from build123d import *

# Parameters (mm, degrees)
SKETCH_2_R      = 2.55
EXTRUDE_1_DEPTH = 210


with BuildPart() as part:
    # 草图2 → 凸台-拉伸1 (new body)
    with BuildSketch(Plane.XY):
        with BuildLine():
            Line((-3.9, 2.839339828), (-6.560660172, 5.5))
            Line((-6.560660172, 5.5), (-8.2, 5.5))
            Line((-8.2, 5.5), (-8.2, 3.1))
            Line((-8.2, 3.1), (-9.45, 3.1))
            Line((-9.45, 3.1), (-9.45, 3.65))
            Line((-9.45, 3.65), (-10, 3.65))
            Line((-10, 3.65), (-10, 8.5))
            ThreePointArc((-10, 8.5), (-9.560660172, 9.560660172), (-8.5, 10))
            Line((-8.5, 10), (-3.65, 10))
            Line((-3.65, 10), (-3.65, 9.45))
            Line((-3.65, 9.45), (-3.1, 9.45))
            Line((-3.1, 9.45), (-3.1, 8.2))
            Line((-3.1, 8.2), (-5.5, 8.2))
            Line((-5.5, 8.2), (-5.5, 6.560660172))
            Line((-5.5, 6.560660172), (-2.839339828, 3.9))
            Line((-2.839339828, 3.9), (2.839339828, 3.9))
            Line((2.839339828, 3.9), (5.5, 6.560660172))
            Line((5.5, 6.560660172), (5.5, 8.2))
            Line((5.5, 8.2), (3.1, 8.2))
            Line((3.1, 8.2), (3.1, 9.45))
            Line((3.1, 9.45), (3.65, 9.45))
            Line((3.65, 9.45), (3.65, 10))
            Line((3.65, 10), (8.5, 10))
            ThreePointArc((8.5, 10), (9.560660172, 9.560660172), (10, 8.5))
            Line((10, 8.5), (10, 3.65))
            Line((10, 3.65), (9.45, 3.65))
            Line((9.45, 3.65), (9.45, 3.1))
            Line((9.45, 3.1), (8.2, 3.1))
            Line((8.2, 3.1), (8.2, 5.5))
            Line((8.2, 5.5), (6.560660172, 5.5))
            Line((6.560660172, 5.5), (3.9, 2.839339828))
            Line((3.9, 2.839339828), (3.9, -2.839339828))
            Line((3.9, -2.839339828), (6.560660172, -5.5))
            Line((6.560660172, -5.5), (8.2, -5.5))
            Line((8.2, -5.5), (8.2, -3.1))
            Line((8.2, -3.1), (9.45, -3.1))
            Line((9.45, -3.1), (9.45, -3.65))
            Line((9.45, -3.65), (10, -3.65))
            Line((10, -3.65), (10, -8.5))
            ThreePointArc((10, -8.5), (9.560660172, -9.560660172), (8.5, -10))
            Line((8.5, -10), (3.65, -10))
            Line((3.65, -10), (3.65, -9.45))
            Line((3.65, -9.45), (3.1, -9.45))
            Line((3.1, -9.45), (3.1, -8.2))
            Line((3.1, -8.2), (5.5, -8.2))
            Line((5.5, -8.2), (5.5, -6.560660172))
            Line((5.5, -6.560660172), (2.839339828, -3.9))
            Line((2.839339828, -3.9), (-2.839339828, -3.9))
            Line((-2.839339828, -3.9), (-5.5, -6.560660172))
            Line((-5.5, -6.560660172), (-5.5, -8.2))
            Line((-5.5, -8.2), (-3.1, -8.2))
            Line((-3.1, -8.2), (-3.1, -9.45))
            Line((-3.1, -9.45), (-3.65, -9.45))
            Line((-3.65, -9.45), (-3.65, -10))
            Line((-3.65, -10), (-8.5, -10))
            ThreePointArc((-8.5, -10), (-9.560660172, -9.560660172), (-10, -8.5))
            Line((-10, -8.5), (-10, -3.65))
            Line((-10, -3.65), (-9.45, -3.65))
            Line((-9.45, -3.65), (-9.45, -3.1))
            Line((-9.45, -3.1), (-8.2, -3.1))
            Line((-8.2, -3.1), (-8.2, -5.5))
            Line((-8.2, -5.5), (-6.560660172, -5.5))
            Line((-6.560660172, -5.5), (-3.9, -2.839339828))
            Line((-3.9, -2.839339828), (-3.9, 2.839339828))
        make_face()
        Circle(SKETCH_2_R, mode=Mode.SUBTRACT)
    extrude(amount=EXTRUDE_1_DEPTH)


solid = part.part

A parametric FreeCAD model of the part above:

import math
import FreeCAD as App
import Part
import Sketcher
Q = App.Units.Quantity

doc = App.newDocument("Part")
body = doc.addObject("PartDesign::Body", "Body")

sketch1 = body.newObject("Sketcher::SketchObject", "Sketch")
sketch1.AttachmentSupport = (doc.getObject("XY_Plane"), [""])
sketch1.MapMode = "FlatFace"
sketch1.addGeometry(Part.LineSegment(App.Vector(-6.6, 5.5, 0), App.Vector(-3.9, 2.8, 0)), False)
sketch1.addGeometry(Part.LineSegment(App.Vector(-3.9, 2.8, 0), App.Vector(-3.9, -2.8, 0)), False)
sketch1.addGeometry(Part.LineSegment(App.Vector(-3.9, -2.8, 0), App.Vector(-6.6, -5.5, 0)), False)
sketch1.addGeometry(Part.LineSegment(App.Vector(-6.6, -5.5, 0), App.Vector(-8.2, -5.5, 0)), False)
sketch1.addGeometry(Part.LineSegment(App.Vector(-8.2, -5.5, 0), App.Vector(-8.2, -3.1, 0)), False)
sketch1.addGeometry(Part.LineSegment(App.Vector(-8.2, -3.1, 0), App.Vector(-9.4, -3.1, 0)), False)
sketch1.addGeometry(Part.LineSegment(App.Vector(-9.4, -3.1, 0), App.Vector(-9.4, -3.6, 0)), False)
sketch1.addGeometry(Part.LineSegment(App.Vector(-9.4, -3.6, 0), App.Vector(-10, -3.6, 0)), False)
sketch1.addGeometry(Part.LineSegment(App.Vector(-10, -3.6, 0), App.Vector(-10, -8.5, 0)), False)
sketch1.addGeometry(Part.ArcOfCircle(Part.Circle(App.Vector(-8.5, -8.5, 0), App.Vector(0, 0, 1), 1.5), math.radians(180), math.radians(270)), False)
sketch1.addGeometry(Part.LineSegment(App.Vector(-8.5, -10, 0), App.Vector(-3.6, -10, 0)), False)
sketch1.addGeometry(Part.LineSegment(App.Vector(-3.6, -10, 0), App.Vector(-3.6, -9.4, 0)), False)
sketch1.addGeometry(Part.LineSegment(App.Vector(-3.6, -9.4, 0), App.Vector(-3.1, -9.4, 0)), False)
sketch1.addGeometry(Part.LineSegment(App.Vector(-3.1, -9.4, 0), App.Vector(-3.1, -8.2, 0)), False)
sketch1.addGeometry(Part.LineSegment(App.Vector(-3.1, -8.2, 0), App.Vector(-5.5, -8.2, 0)), False)
sketch1.addGeometry(Part.LineSegment(App.Vector(-5.5, -8.2, 0), App.Vector(-5.5, -6.6, 0)), False)
sketch1.addGeometry(Part.LineSegment(App.Vector(-5.5, -6.6, 0), App.Vector(-2.8, -3.9, 0)), False)
sketch1.addGeometry(Part.LineSegment(App.Vector(-2.8, -3.9, 0), App.Vector(2.8, -3.9, 0)), False)
sketch1.addGeometry(Part.LineSegment(App.Vector(2.8, -3.9, 0), App.Vector(5.5, -6.6, 0)), False)
sketch1.addGeometry(Part.LineSegment(App.Vector(5.5, -6.6, 0), App.Vector(5.5, -8.2, 0)), False)
sketch1.addGeometry(Part.LineSegment(App.Vector(5.5, -8.2, 0), App.Vector(3.1, -8.2, 0)), False)
sketch1.addGeometry(Part.LineSegment(App.Vector(3.1, -8.2, 0), App.Vector(3.1, -9.4, 0)), False)
sketch1.addGeometry(Part.LineSegment(App.Vector(3.1, -9.4, 0), App.Vector(3.6, -9.4, 0)), False)
sketch1.addGeometry(Part.LineSegment(App.Vector(3.6, -9.4, 0), App.Vector(3.6, -10, 0)), False)
sketch1.addGeometry(Part.LineSegment(App.Vector(3.6, -10, 0), App.Vector(8.5, -10, 0)), False)
sketch1.addGeometry(Part.ArcOfCircle(Part.Circle(App.Vector(8.5, -8.5, 0), App.Vector(0, 0, 1), 1.5), math.radians(-90), math.radians(0)), False)
sketch1.addGeometry(Part.LineSegment(App.Vector(10, -8.5, 0), App.Vector(10, -3.6, 0)), False)
sketch1.addGeometry(Part.LineSegment(App.Vector(10, -3.6, 0), App.Vector(9.4, -3.6, 0)), False)
sketch1.addGeometry(Part.LineSegment(App.Vector(9.4, -3.6, 0), App.Vector(9.4, -3.1, 0)), False)
sketch1.addGeometry(Part.LineSegment(App.Vector(9.4, -3.1, 0), App.Vector(8.2, -3.1, 0)), False)
sketch1.addGeometry(Part.LineSegment(App.Vector(8.2, -3.1, 0), App.Vector(8.2, -5.5, 0)), False)
sketch1.addGeometry(Part.LineSegment(App.Vector(8.2, -5.5, 0), App.Vector(6.6, -5.5, 0)), False)
sketch1.addGeometry(Part.LineSegment(App.Vector(6.6, -5.5, 0), App.Vector(3.9, -2.8, 0)), False)
sketch1.addGeometry(Part.LineSegment(App.Vector(3.9, -2.8, 0), App.Vector(3.9, 2.8, 0)), False)
sketch1.addGeometry(Part.LineSegment(App.Vector(3.9, 2.8, 0), App.Vector(6.6, 5.5, 0)), False)
sketch1.addGeometry(Part.LineSegment(App.Vector(6.6, 5.5, 0), App.Vector(8.2, 5.5, 0)), False)
sketch1.addGeometry(Part.LineSegment(App.Vector(8.2, 5.5, 0), App.Vector(8.2, 3.1, 0)), False)
sketch1.addGeometry(Part.LineSegment(App.Vector(8.2, 3.1, 0), App.Vector(9.4, 3.1, 0)), False)
sketch1.addGeometry(Part.LineSegment(App.Vector(9.4, 3.1, 0), App.Vector(9.4, 3.6, 0)), False)
sketch1.addGeometry(Part.LineSegment(App.Vector(9.4, 3.6, 0), App.Vector(10, 3.6, 0)), False)
sketch1.addGeometry(Part.LineSegment(App.Vector(10, 3.6, 0), App.Vector(10, 8.5, 0)), False)
sketch1.addGeometry(Part.ArcOfCircle(Part.Circle(App.Vector(8.5, 8.5, 0), App.Vector(0, 0, 1), 1.5), math.radians(0), math.radians(90)), False)
sketch1.addGeometry(Part.LineSegment(App.Vector(8.5, 10, 0), App.Vector(3.6, 10, 0)), False)
sketch1.addGeometry(Part.LineSegment(App.Vector(3.6, 10, 0), App.Vector(3.6, 9.4, 0)), False)
sketch1.addGeometry(Part.LineSegment(App.Vector(3.6, 9.4, 0), App.Vector(3.1, 9.4, 0)), False)
sketch1.addGeometry(Part.LineSegment(App.Vector(3.1, 9.4, 0), App.Vector(3.1, 8.2, 0)), False)
sketch1.addGeometry(Part.LineSegment(App.Vector(3.1, 8.2, 0), App.Vector(5.5, 8.2, 0)), False)
sketch1.addGeometry(Part.LineSegment(App.Vector(5.5, 8.2, 0), App.Vector(5.5, 6.6, 0)), False)
sketch1.addGeometry(Part.LineSegment(App.Vector(5.5, 6.6, 0), App.Vector(2.8, 3.9, 0)), False)
sketch1.addGeometry(Part.LineSegment(App.Vector(2.8, 3.9, 0), App.Vector(-2.8, 3.9, 0)), False)
sketch1.addGeometry(Part.LineSegment(App.Vector(-2.8, 3.9, 0), App.Vector(-5.5, 6.6, 0)), False)
sketch1.addGeometry(Part.LineSegment(App.Vector(-5.5, 6.6, 0), App.Vector(-5.5, 8.2, 0)), False)
sketch1.addGeometry(Part.LineSegment(App.Vector(-5.5, 8.2, 0), App.Vector(-3.1, 8.2, 0)), False)
sketch1.addGeometry(Part.LineSegment(App.Vector(-3.1, 8.2, 0), App.Vector(-3.1, 9.4, 0)), False)
sketch1.addGeometry(Part.LineSegment(App.Vector(-3.1, 9.4, 0), App.Vector(-3.6, 9.4, 0)), False)
sketch1.addGeometry(Part.LineSegment(App.Vector(-3.6, 9.4, 0), App.Vector(-3.6, 10, 0)), False)
sketch1.addGeometry(Part.LineSegment(App.Vector(-3.6, 10, 0), App.Vector(-8.5, 10, 0)), False)
sketch1.addGeometry(Part.ArcOfCircle(Part.Circle(App.Vector(-8.5, 8.5, 0), App.Vector(0, 0, 1), 1.5), math.radians(90), math.radians(180)), False)
sketch1.addGeometry(Part.LineSegment(App.Vector(-10, 8.5, 0), App.Vector(-10, 3.6, 0)), False)
sketch1.addGeometry(Part.LineSegment(App.Vector(-10, 3.6, 0), App.Vector(-9.4, 3.6, 0)), False)
sketch1.addGeometry(Part.LineSegment(App.Vector(-9.4, 3.6, 0), App.Vector(-9.4, 3.1, 0)), False)
sketch1.addGeometry(Part.LineSegment(App.Vector(-9.4, 3.1, 0), App.Vector(-8.2, 3.1, 0)), False)
sketch1.addGeometry(Part.LineSegment(App.Vector(-8.2, 3.1, 0), App.Vector(-8.2, 5.5, 0)), False)
sketch1.addGeometry(Part.LineSegment(App.Vector(-8.2, 5.5, 0), App.Vector(-6.6, 5.5, 0)), False)
sketch1.addGeometry(Part.Circle(App.Vector(0, 0, 0), App.Vector(0, 0, 1), 2.5), False)
sketch1.addConstraint(Sketcher.Constraint("Coincident", 0, 2, 1, 1))
sketch1.addConstraint(Sketcher.Constraint("Coincident", 1, 2, 2, 1))
sketch1.addConstraint(Sketcher.Constraint("Coincident", 2, 2, 3, 1))
sketch1.addConstraint(Sketcher.Constraint("Coincident", 3, 2, 4, 1))
sketch1.addConstraint(Sketcher.Constraint("Coincident", 4, 2, 5, 1))
sketch1.addConstraint(Sketcher.Constraint("Coincident", 5, 2, 6, 1))
sketch1.addConstraint(Sketcher.Constraint("Coincident", 6, 2, 7, 1))
sketch1.addConstraint(Sketcher.Constraint("Coincident", 7, 2, 8, 1))
sketch1.addConstraint(Sketcher.Constraint("Tangent", 8, 2, 9, 1))
sketch1.addConstraint(Sketcher.Constraint("Tangent", 9, 2, 10, 1))
sketch1.addConstraint(Sketcher.Constraint("Coincident", 10, 2, 11, 1))
sketch1.addConstraint(Sketcher.Constraint("Coincident", 11, 2, 12, 1))
sketch1.addConstraint(Sketcher.Constraint("Coincident", 12, 2, 13, 1))
sketch1.addConstraint(Sketcher.Constraint("Coincident", 13, 2, 14, 1))
sketch1.addConstraint(Sketcher.Constraint("Coincident", 14, 2, 15, 1))
sketch1.addConstraint(Sketcher.Constraint("Coincident", 15, 2, 16, 1))
sketch1.addConstraint(Sketcher.Constraint("Coincident", 16, 2, 17, 1))
sketch1.addConstraint(Sketcher.Constraint("Coincident", 17, 2, 18, 1))
sketch1.addConstraint(Sketcher.Constraint("Coincident", 18, 2, 19, 1))
sketch1.addConstraint(Sketcher.Constraint("Coincident", 19, 2, 20, 1))
sketch1.addConstraint(Sketcher.Constraint("Coincident", 20, 2, 21, 1))
sketch1.addConstraint(Sketcher.Constraint("Coincident", 21, 2, 22, 1))
sketch1.addConstraint(Sketcher.Constraint("Coincident", 22, 2, 23, 1))
sketch1.addConstraint(Sketcher.Constraint("Coincident", 23, 2, 24, 1))
sketch1.addConstraint(Sketcher.Constraint("Tangent", 24, 2, 25, 1))
sketch1.addConstraint(Sketcher.Constraint("Tangent", 25, 2, 26, 1))
sketch1.addConstraint(Sketcher.Constraint("Coincident", 26, 2, 27, 1))
sketch1.addConstraint(Sketcher.Constraint("Coincident", 27, 2, 28, 1))
sketch1.addConstraint(Sketcher.Constraint("Coincident", 28, 2, 29, 1))
sketch1.addConstraint(Sketcher.Constraint("Coincident", 29, 2, 30, 1))
sketch1.addConstraint(Sketcher.Constraint("Coincident", 30, 2, 31, 1))
sketch1.addConstraint(Sketcher.Constraint("Coincident", 31, 2, 32, 1))
sketch1.addConstraint(Sketcher.Constraint("Coincident", 32, 2, 33, 1))
sketch1.addConstraint(Sketcher.Constraint("Coincident", 33, 2, 34, 1))
sketch1.addConstraint(Sketcher.Constraint("Coincident", 34, 2, 35, 1))
sketch1.addConstraint(Sketcher.Constraint("Coincident", 35, 2, 36, 1))
sketch1.addConstraint(Sketcher.Constraint("Coincident", 36, 2, 37, 1))
sketch1.addConstraint(Sketcher.Constraint("Coincident", 37, 2, 38, 1))
sketch1.addConstraint(Sketcher.Constraint("Coincident", 38, 2, 39, 1))
sketch1.addConstraint(Sketcher.Constraint("Coincident", 39, 2, 40, 1))
sketch1.addConstraint(Sketcher.Constraint("Tangent", 40, 2, 41, 1))
sketch1.addConstraint(Sketcher.Constraint("Tangent", 41, 2, 42, 1))
sketch1.addConstraint(Sketcher.Constraint("Coincident", 42, 2, 43, 1))
sketch1.addConstraint(Sketcher.Constraint("Coincident", 43, 2, 44, 1))
sketch1.addConstraint(Sketcher.Constraint("Coincident", 44, 2, 45, 1))
sketch1.addConstraint(Sketcher.Constraint("Coincident", 45, 2, 46, 1))
sketch1.addConstraint(Sketcher.Constraint("Coincident", 46, 2, 47, 1))
sketch1.addConstraint(Sketcher.Constraint("Coincident", 47, 2, 48, 1))
sketch1.addConstraint(Sketcher.Constraint("Coincident", 48, 2, 49, 1))
sketch1.addConstraint(Sketcher.Constraint("Coincident", 49, 2, 50, 1))
sketch1.addConstraint(Sketcher.Constraint("Coincident", 50, 2, 51, 1))
sketch1.addConstraint(Sketcher.Constraint("Coincident", 51, 2, 52, 1))
sketch1.addConstraint(Sketcher.Constraint("Coincident", 52, 2, 53, 1))
sketch1.addConstraint(Sketcher.Constraint("Coincident", 53, 2, 54, 1))
sketch1.addConstraint(Sketcher.Constraint("Coincident", 54, 2, 55, 1))
sketch1.addConstraint(Sketcher.Constraint("Coincident", 55, 2, 56, 1))
sketch1.addConstraint(Sketcher.Constraint("Tangent", 56, 2, 57, 1))
sketch1.addConstraint(Sketcher.Constraint("Tangent", 57, 2, 58, 1))
sketch1.addConstraint(Sketcher.Constraint("Coincident", 58, 2, 59, 1))
sketch1.addConstraint(Sketcher.Constraint("Coincident", 59, 2, 60, 1))
sketch1.addConstraint(Sketcher.Constraint("Coincident", 60, 2, 61, 1))
sketch1.addConstraint(Sketcher.Constraint("Coincident", 61, 2, 62, 1))
sketch1.addConstraint(Sketcher.Constraint("Coincident", 62, 2, 63, 1))
sketch1.addConstraint(Sketcher.Constraint("Coincident", 63, 2, 0, 1))
sketch1.addConstraint(Sketcher.Constraint("Vertical", 1))
sketch1.addConstraint(Sketcher.Constraint("Horizontal", 3))
sketch1.addConstraint(Sketcher.Constraint("Vertical", 4))
sketch1.addConstraint(Sketcher.Constraint("Horizontal", 5))
sketch1.addConstraint(Sketcher.Constraint("Vertical", 6))
sketch1.addConstraint(Sketcher.Constraint("Horizontal", 7))
sketch1.addConstraint(Sketcher.Constraint("Vertical", 8))
sketch1.addConstraint(Sketcher.Constraint("Horizontal", 10))
sketch1.addConstraint(Sketcher.Constraint("Vertical", 11))
sketch1.addConstraint(Sketcher.Constraint("Horizontal", 12))
sketch1.addConstraint(Sketcher.Constraint("Vertical", 13))
sketch1.addConstraint(Sketcher.Constraint("Horizontal", 14))
sketch1.addConstraint(Sketcher.Constraint("Vertical", 15))
sketch1.addConstraint(Sketcher.Constraint("Horizontal", 17))
sketch1.addConstraint(Sketcher.Constraint("Vertical", 19))
sketch1.addConstraint(Sketcher.Constraint("Horizontal", 20))
sketch1.addConstraint(Sketcher.Constraint("Vertical", 21))
sketch1.addConstraint(Sketcher.Constraint("Horizontal", 22))
sketch1.addConstraint(Sketcher.Constraint("Vertical", 23))
sketch1.addConstraint(Sketcher.Constraint("Horizontal", 24))
sketch1.addConstraint(Sketcher.Constraint("Vertical", 26))
sketch1.addConstraint(Sketcher.Constraint("Horizontal", 27))
sketch1.addConstraint(Sketcher.Constraint("Vertical", 28))
sketch1.addConstraint(Sketcher.Constraint("Horizontal", 29))
sketch1.addConstraint(Sketcher.Constraint("Vertical", 30))
sketch1.addConstraint(Sketcher.Constraint("Horizontal", 31))
sketch1.addConstraint(Sketcher.Constraint("Vertical", 33))
sketch1.addConstraint(Sketcher.Constraint("Horizontal", 35))
sketch1.addConstraint(Sketcher.Constraint("Vertical", 36))
sketch1.addConstraint(Sketcher.Constraint("Horizontal", 37))
sketch1.addConstraint(Sketcher.Constraint("Vertical", 38))
sketch1.addConstraint(Sketcher.Constraint("Horizontal", 39))
sketch1.addConstraint(Sketcher.Constraint("Vertical", 40))
sketch1.addConstraint(Sketcher.Constraint("Horizontal", 42))
sketch1.addConstraint(Sketcher.Constraint("Vertical", 43))
sketch1.addConstraint(Sketcher.Constraint("Horizontal", 44))
sketch1.addConstraint(Sketcher.Constraint("Vertical", 45))
sketch1.addConstraint(Sketcher.Constraint("Horizontal", 46))
sketch1.addConstraint(Sketcher.Constraint("Vertical", 47))
sketch1.addConstraint(Sketcher.Constraint("Horizontal", 49))
sketch1.addConstraint(Sketcher.Constraint("Vertical", 51))
sketch1.addConstraint(Sketcher.Constraint("Horizontal", 52))
sketch1.addConstraint(Sketcher.Constraint("Vertical", 53))
sketch1.addConstraint(Sketcher.Constraint("Horizontal", 54))
sketch1.addConstraint(Sketcher.Constraint("Vertical", 55))
sketch1.addConstraint(Sketcher.Constraint("Horizontal", 56))
sketch1.addConstraint(Sketcher.Constraint("Vertical", 58))
sketch1.addConstraint(Sketcher.Constraint("Horizontal", 59))
sketch1.addConstraint(Sketcher.Constraint("Vertical", 60))
sketch1.addConstraint(Sketcher.Constraint("Horizontal", 61))
sketch1.addConstraint(Sketcher.Constraint("Vertical", 62))
sketch1.addConstraint(Sketcher.Constraint("Horizontal", 63))
sketch1.addConstraint(Sketcher.Constraint("Coincident", 64, 3, -1, 1))
sketch1.addConstraint(Sketcher.Constraint("Equal", 9, 25))
sketch1.addConstraint(Sketcher.Constraint("Equal", 25, 41))
sketch1.addConstraint(Sketcher.Constraint("Equal", 41, 57))
sketch1.addConstraint(Sketcher.Constraint("Symmetric", 9, 3, 41, 3, -1, 1))
sketch1.addConstraint(Sketcher.Constraint("Symmetric", 25, 3, 57, 3, -1, 1))
sketch1.addConstraint(Sketcher.Constraint("Symmetric", 0, 2, 32, 2, -1, 1))
sketch1.addConstraint(Sketcher.Constraint("Symmetric", 2, 2, 34, 2, -1, 1))
sketch1.addConstraint(Sketcher.Constraint("Symmetric", 4, 2, 36, 2, -1, 1))
sketch1.addConstraint(Sketcher.Constraint("Symmetric", 6, 2, 38, 2, -1, 1))
sketch1.addConstraint(Sketcher.Constraint("Symmetric", 11, 2, 43, 2, -1, 1))
sketch1.addConstraint(Sketcher.Constraint("Symmetric", 13, 2, 45, 2, -1, 1))
sketch1.addConstraint(Sketcher.Constraint("Symmetric", 15, 2, 47, 2, -1, 1))
sketch1.addConstraint(Sketcher.Constraint("Symmetric", 16, 2, 48, 2, -1, 1))
sketch1.addConstraint(Sketcher.Constraint("Symmetric", 18, 2, 50, 2, -1, 1))
sketch1.addConstraint(Sketcher.Constraint("Symmetric", 20, 2, 52, 2, -1, 1))
sketch1.addConstraint(Sketcher.Constraint("Symmetric", 22, 2, 54, 2, -1, 1))
sketch1.addConstraint(Sketcher.Constraint("Symmetric", 27, 2, 59, 2, -1, 1))
sketch1.addConstraint(Sketcher.Constraint("Symmetric", 29, 2, 61, 2, -1, 1))
sketch1.addConstraint(Sketcher.Constraint("Symmetric", 31, 2, 63, 2, -1, 1))
sketch1.addConstraint(Sketcher.Constraint("Symmetric", 9, 3, 25, 3, -2))
sketch1.addConstraint(Sketcher.Constraint("Symmetric", 15, 2, 18, 2, -2))
sketch1.addConstraint(Sketcher.Constraint("Symmetric", 13, 2, 20, 2, -2))
sketch1.addConstraint(Sketcher.Constraint("Symmetric", 11, 2, 22, 2, -2))
sketch1.addConstraint(Sketcher.Constraint("Symmetric", 6, 2, 27, 2, -2))
sketch1.addConstraint(Sketcher.Constraint("Symmetric", 4, 2, 29, 2, -2))
sketch1.addConstraint(Sketcher.Constraint("Symmetric", 2, 2, 31, 2, -2))
sketch1.addConstraint(Sketcher.Constraint("Perpendicular", 0, 2))
sketch1.addConstraint(Sketcher.Constraint("Parallel", 2, 16))
sketch1.addConstraint(Sketcher.Constraint("Perpendicular", 16, 18))
sketch1.addConstraint(Sketcher.Constraint("Perpendicular", 32, 34))
sketch1.addConstraint(Sketcher.Constraint("Perpendicular", 48, 50))
sketch1.addConstraint(Sketcher.Constraint("Horizontal", 1, 2, 32, 2))
sketch1.addConstraint(Sketcher.Constraint("Equal", 7, 12))
sketch1.addConstraint(Sketcher.Constraint("Equal", 49, 1))
sketch1.addConstraint(Sketcher.Constraint("Equal", 52, 4))
sketch1.addConstraint(Sketcher.Constraint("Equal", 59, 6))
sketch1.addConstraint(Sketcher.Constraint("Equal", 56, 8))
sketch1.addConstraint(Sketcher.Constraint("Equal", 6, 11))
sketch1.addConstraint(Sketcher.Constraint("Equal", 61, 13))
sketch1.addConstraint(Sketcher.Constraint("Equal", 63, 15))
sketch1.addConstraint(Sketcher.Constraint("Equal", 2, 16))
sketch1.addConstraint(Sketcher.Constraint("Diameter", 64, Q("5.1 mm")))
sketch1.addConstraint(Sketcher.Constraint("Radius", 9, Q("1.5 mm")))
sketch1.addConstraint(Sketcher.Constraint("DistanceX", 14, 2, 14, 1, Q("2.4 mm")))
sketch1.addConstraint(Sketcher.Constraint("DistanceX", 7, 2, -1, 1, Q("10 mm")))
sketch1.addConstraint(Sketcher.Constraint("DistanceX", 5, 2, 5, 1, Q("1.25 mm")))
sketch1.addConstraint(Sketcher.Constraint("DistanceX", 7, 2, 7, 1, Q("0.55 mm")))
sketch1.addConstraint(Sketcher.Constraint("DistanceX", 10, 1, 10, 2, Q("4.85 mm")))
sketch1.addConstraint(Sketcher.Constraint("DistanceX", 0, 2, -1, 1, Q("3.9 mm")))
sketch1.addConstraint(Sketcher.Constraint("DistanceX", 3, 2, 3, 1, Q("1.63934 mm")))
pad1 = body.newObject("PartDesign::Pad", "Pad")
pad1.Profile = sketch1
pad1.Length = 210

doc.recompute()
